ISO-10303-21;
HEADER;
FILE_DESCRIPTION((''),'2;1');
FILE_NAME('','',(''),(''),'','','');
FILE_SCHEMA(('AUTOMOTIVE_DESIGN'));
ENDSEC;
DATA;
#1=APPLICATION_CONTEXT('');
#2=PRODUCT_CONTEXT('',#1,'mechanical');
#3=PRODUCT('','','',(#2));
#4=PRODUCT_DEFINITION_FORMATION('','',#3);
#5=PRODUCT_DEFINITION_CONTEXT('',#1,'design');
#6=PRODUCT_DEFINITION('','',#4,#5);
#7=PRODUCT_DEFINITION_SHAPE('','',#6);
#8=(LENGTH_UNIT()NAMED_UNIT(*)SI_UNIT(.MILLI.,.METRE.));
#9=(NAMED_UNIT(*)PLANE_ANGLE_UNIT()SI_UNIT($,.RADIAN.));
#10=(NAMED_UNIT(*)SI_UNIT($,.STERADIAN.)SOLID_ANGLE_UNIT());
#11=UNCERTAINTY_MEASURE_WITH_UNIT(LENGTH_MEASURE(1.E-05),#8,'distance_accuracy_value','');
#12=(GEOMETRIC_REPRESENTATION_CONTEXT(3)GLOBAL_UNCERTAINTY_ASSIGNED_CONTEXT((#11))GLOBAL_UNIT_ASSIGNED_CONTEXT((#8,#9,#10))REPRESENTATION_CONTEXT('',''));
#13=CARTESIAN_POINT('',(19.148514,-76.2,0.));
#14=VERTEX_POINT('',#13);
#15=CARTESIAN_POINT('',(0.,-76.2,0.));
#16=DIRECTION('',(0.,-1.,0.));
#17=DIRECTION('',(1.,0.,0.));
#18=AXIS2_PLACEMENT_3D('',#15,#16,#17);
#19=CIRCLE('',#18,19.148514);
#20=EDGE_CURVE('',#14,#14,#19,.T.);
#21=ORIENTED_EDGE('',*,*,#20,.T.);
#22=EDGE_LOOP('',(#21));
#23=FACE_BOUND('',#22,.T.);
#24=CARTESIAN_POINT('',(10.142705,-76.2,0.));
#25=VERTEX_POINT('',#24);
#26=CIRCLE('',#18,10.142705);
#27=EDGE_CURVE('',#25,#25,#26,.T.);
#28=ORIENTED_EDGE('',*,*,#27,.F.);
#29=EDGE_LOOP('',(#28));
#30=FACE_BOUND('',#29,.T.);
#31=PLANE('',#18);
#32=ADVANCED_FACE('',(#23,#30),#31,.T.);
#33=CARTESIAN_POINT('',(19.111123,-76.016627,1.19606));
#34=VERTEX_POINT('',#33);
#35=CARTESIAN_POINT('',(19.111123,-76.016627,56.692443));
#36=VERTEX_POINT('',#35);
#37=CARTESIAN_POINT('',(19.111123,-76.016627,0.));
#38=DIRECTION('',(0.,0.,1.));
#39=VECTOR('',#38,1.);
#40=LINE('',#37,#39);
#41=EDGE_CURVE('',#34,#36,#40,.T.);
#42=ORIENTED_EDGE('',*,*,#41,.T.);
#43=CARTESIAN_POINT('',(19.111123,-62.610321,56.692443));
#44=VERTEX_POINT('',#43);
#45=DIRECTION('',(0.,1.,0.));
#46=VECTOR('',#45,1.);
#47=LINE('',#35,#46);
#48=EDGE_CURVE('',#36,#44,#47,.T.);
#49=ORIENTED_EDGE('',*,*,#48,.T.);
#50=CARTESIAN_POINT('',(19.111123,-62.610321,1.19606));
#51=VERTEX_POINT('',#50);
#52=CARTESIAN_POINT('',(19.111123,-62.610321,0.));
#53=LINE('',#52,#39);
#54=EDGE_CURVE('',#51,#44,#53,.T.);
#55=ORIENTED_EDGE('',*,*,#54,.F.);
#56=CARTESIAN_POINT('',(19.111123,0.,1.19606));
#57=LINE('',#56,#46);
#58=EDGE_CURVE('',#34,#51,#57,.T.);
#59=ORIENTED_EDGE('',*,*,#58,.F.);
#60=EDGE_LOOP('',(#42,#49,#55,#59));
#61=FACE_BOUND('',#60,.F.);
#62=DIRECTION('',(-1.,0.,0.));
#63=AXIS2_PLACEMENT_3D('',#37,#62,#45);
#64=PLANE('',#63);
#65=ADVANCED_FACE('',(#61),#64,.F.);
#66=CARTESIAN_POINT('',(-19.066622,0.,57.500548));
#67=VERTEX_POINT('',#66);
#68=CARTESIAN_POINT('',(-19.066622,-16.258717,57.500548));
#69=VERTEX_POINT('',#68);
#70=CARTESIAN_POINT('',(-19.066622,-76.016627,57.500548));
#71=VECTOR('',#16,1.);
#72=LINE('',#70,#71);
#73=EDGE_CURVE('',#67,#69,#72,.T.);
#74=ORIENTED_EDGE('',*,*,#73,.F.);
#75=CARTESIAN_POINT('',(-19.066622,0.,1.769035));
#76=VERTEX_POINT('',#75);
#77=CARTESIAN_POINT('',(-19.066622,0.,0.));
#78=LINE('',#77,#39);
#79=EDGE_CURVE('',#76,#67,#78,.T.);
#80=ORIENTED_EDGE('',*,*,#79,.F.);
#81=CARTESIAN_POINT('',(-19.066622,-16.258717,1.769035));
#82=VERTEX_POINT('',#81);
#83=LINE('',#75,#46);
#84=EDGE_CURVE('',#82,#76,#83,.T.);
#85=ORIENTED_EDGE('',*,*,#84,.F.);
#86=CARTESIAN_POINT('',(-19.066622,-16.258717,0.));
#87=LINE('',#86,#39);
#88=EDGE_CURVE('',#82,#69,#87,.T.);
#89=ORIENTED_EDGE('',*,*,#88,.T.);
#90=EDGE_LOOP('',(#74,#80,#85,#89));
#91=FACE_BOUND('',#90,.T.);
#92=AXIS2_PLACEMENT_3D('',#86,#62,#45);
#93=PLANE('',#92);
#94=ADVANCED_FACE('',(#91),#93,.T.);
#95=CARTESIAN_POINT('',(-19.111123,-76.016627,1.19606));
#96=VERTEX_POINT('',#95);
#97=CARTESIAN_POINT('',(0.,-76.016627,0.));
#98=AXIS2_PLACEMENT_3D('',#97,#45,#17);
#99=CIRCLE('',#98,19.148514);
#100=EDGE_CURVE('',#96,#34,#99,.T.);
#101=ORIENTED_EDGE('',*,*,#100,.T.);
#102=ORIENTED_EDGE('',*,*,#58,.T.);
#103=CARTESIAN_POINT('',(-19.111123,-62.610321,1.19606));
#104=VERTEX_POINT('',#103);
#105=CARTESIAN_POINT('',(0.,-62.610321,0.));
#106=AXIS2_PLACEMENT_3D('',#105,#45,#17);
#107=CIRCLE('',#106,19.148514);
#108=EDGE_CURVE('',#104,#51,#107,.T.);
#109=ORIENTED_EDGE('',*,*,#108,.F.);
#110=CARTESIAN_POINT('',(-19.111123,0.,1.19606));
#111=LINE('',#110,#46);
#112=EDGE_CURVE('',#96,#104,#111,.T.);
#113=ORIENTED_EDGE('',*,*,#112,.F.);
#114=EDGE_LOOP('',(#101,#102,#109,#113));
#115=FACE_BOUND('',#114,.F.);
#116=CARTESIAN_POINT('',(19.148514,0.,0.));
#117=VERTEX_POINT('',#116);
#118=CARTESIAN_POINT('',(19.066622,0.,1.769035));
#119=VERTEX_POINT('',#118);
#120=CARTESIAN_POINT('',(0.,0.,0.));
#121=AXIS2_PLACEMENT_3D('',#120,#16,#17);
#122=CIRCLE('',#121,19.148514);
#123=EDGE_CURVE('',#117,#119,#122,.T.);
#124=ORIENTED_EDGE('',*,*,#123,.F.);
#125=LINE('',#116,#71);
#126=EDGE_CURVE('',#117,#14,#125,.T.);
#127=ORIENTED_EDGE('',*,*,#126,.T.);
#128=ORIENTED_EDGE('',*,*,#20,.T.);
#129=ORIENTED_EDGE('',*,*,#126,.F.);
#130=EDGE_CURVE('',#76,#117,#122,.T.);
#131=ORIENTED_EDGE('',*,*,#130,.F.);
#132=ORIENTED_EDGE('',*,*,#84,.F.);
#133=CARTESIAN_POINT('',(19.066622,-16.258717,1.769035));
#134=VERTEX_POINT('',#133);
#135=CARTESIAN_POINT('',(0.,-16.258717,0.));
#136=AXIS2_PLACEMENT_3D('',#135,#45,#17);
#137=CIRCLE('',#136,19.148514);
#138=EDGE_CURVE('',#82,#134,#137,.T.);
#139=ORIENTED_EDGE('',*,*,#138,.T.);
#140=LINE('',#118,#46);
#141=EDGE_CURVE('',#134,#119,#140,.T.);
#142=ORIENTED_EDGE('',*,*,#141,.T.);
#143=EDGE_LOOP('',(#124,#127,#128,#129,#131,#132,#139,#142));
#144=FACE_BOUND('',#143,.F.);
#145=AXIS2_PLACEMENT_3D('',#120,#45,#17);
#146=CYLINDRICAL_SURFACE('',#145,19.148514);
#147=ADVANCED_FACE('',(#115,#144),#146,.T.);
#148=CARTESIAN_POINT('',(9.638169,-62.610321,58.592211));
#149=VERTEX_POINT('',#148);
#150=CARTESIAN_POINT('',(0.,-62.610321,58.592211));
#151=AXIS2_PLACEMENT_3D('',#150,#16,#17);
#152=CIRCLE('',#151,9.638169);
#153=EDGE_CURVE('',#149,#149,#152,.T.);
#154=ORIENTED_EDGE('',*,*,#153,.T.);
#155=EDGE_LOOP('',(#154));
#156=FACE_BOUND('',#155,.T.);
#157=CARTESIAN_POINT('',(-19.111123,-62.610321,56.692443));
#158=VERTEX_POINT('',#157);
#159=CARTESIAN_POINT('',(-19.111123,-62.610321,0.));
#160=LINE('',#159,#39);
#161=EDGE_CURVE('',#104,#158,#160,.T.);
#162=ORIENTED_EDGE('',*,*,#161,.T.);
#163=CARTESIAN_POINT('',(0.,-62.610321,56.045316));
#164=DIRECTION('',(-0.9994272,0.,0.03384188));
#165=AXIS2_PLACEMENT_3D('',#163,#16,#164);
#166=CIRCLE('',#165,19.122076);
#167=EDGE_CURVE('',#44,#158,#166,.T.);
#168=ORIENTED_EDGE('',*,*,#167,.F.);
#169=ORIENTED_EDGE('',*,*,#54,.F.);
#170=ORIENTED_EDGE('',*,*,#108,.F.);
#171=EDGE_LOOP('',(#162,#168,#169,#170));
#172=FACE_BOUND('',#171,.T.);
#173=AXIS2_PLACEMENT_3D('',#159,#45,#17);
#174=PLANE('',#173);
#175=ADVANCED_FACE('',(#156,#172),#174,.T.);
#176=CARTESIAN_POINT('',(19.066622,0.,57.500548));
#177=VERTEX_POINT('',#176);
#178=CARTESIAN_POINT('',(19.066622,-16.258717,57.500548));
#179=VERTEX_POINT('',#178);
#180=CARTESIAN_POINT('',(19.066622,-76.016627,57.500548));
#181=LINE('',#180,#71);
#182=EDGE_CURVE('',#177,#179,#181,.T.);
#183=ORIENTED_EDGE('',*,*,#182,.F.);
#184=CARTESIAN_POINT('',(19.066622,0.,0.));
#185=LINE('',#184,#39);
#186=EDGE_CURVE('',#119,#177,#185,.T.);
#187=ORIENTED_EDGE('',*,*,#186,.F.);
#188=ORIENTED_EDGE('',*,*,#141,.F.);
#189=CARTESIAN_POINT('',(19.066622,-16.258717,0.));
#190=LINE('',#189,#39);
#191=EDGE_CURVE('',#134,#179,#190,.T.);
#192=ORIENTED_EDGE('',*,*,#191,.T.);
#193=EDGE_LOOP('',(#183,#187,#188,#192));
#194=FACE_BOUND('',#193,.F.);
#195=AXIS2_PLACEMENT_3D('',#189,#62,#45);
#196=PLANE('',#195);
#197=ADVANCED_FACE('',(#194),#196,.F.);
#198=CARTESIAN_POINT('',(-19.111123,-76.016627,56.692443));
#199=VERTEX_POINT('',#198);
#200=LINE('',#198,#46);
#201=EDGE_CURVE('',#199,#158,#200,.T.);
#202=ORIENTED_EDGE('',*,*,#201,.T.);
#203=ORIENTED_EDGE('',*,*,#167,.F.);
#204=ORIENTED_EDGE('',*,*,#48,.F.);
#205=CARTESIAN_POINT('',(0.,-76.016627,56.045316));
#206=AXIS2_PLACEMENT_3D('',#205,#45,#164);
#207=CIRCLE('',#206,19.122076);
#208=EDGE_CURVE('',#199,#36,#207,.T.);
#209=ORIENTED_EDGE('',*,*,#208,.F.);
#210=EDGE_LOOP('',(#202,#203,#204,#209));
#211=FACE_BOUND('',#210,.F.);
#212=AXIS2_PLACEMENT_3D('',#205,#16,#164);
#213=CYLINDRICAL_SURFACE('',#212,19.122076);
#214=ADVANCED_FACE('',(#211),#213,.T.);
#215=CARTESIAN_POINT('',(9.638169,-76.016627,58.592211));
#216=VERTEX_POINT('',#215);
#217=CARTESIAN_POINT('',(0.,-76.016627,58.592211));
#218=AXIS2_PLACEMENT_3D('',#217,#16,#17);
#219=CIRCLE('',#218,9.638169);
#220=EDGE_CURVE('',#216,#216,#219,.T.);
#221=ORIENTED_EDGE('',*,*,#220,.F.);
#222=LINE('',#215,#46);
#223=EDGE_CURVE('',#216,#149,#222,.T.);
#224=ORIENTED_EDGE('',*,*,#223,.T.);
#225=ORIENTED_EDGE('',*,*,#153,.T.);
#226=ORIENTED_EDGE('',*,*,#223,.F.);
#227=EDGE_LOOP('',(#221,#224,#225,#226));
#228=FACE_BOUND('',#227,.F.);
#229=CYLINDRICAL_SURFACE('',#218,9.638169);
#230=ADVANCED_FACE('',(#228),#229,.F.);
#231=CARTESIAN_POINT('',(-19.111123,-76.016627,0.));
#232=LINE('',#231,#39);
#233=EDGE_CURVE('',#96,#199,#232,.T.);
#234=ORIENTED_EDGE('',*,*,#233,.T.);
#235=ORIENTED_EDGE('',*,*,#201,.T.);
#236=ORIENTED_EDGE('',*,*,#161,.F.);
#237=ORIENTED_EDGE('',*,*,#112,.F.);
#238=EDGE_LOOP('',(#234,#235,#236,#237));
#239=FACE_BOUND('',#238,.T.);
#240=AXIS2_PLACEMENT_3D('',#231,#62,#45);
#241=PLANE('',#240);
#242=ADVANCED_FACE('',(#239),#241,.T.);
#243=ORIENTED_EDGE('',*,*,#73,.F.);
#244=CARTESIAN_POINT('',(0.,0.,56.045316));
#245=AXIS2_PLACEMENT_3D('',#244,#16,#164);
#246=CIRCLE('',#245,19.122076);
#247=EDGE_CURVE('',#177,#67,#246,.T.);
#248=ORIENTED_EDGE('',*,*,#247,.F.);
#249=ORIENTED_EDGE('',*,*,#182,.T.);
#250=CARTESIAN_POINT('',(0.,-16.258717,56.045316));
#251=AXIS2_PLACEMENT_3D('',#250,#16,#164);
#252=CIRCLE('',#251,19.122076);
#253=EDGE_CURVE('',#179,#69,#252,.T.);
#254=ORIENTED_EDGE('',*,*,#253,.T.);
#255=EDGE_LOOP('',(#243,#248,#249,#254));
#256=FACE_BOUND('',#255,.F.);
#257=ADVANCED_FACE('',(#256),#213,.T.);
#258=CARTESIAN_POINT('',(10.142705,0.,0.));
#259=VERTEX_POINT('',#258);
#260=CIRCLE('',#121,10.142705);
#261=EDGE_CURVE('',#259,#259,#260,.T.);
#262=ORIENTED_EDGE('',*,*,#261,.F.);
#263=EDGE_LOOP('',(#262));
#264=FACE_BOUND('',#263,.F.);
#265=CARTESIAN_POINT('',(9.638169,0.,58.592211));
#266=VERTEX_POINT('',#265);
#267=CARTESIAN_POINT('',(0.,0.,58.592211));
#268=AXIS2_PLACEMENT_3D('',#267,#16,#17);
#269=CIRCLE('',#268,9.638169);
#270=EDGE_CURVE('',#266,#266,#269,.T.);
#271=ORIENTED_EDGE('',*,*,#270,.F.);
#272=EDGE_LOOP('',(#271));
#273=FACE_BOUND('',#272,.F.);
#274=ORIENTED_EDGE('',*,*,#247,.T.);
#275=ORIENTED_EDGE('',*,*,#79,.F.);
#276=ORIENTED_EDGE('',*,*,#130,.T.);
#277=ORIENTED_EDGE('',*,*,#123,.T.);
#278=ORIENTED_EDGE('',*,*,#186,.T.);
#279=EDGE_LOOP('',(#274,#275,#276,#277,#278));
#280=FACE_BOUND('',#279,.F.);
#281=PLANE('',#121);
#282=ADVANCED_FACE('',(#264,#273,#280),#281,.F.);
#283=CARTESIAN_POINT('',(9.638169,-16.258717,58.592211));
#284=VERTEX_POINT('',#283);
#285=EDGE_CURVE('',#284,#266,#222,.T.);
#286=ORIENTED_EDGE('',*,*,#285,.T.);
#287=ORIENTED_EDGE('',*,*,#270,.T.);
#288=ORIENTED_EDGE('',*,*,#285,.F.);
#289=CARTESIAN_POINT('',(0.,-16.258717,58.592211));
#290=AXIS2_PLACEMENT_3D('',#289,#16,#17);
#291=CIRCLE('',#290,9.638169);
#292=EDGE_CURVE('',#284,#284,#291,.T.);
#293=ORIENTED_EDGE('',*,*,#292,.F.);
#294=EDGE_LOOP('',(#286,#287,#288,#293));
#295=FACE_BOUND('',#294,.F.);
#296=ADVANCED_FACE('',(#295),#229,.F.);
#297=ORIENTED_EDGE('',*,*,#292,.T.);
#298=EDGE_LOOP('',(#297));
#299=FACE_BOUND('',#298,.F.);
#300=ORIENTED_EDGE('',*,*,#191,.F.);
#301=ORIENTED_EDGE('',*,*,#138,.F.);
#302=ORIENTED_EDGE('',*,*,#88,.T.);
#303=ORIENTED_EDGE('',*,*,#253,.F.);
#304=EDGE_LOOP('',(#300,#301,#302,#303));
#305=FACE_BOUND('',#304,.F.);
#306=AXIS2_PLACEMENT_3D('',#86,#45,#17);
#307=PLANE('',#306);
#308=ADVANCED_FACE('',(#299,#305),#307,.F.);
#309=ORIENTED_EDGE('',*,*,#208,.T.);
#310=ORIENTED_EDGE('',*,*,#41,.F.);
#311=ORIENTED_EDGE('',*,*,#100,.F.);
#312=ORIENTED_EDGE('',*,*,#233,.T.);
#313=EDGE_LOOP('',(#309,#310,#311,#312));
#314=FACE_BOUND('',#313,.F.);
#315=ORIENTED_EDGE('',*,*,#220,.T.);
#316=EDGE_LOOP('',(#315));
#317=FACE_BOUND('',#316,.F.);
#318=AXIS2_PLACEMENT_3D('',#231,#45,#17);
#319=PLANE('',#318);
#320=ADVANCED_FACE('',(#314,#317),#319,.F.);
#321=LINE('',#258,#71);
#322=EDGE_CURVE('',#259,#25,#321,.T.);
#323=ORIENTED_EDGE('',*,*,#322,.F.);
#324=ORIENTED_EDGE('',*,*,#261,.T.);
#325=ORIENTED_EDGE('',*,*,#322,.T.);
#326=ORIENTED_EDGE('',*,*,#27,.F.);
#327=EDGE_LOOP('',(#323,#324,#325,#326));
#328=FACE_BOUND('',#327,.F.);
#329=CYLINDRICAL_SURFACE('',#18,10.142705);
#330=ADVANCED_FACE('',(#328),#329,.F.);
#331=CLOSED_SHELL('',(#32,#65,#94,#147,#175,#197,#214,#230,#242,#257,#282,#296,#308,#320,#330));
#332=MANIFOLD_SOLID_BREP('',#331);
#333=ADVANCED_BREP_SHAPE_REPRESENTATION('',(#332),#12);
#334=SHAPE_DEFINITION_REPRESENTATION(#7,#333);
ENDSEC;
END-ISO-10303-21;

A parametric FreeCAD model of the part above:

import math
import FreeCAD as App
import Part
import Sketcher
from FreeCAD import Vector
Q = App.Units.Quantity


def add_polygon(sketch, points):
    """Adds a closed chain of lines whose ends are joined by coincident constraints."""
    first, n = sketch.GeometryCount, len(points)
    for a, b in zip(points, points[1:] + points[:1]):
        sketch.addGeometry(Part.LineSegment(App.Vector(*a, 0), App.Vector(*b, 0)), False)
    for i in range(n):
        sketch.addConstraint(Sketcher.Constraint("Coincident", first + i, 2, first + (i + 1) % n, 1))

doc = App.newDocument("Part")
params = doc.addObject("Spreadsheet::Sheet", "Params")
for row, (alias, value) in enumerate([
    ("pad1_length", "3 in"),
    ("pocket1_length", "3 in"),
    ("pad2_length", "3 in"),
    ("pad3_length", "3 in"),
    ("pocket2_length", "5 in"),
    ("pocket3_length", "5 in"),
    ("pocket4_length", "5 in"),
], start=1):
    params.set(f"A{row}", alias)
    params.set(f"B{row}", "=" + value)
    params.setAlias(f"B{row}", alias)

body = doc.addObject("PartDesign::Body", "Body")

sketch1 = body.newObject("Sketcher::SketchObject", "Sketch")
sketch1.AttachmentSupport = (doc.getObject("XZ_Plane"), [""])
sketch1.MapMode = "FlatFace"
sketch1.addGeometry(Part.Circle(Vector(0, 0, 0), Vector(0, 0, 1), 19), False)
sketch1.addConstraint(Sketcher.Constraint("Coincident", 0, 3, -1, 1))
sketch1.addConstraint(Sketcher.Constraint("Diameter", 0, 38.297028))
pad1 = body.newObject("PartDesign::Pad", "Pad")
pad1.Profile = sketch1
pad1.setExpression("Length", "Params.pad1_length")

sketch2 = body.newObject("Sketcher::SketchObject", "Sketch001")
sketch2.AttachmentSupport = (doc.getObject("XZ_Plane"), [""])
sketch2.MapMode = "FlatFace"
sketch2.AttachmentOffset = App.Placement(Vector(0, 0, 3 * 25.4), App.Rotation())
sketch2.addGeometry(Part.Circle(Vector(0, 0, 0), Vector(0, 0, 1), 10), False)
sketch2.addConstraint(Sketcher.Constraint("Coincident", 0, 3, -1, 1))
sketch2.addConstraint(Sketcher.Constraint("Diameter", 0, 20.285411))
pocket1 = body.newObject("PartDesign::Pocket", "Pocket")
pocket1.Profile = sketch2
pocket1.setExpression("Length", "Params.pocket1_length")

sketch3 = body.newObject("Sketcher::SketchObject", "Sketch002")
sketch3.AttachmentSupport = (doc.getObject("XY_Plane"), [""])
sketch3.MapMode = "FlatFace"
add_polygon(sketch3, [(-19, 0), (-19, -16), (19, -16), (19, 0)])
sketch3.addConstraint(Sketcher.Constraint("Vertical", 0))
sketch3.addConstraint(Sketcher.Constraint("Horizontal", 1))
sketch3.addConstraint(Sketcher.Constraint("Vertical", 2))
sketch3.addConstraint(Sketcher.Constraint("Horizontal", 3))
sketch3.addConstraint(Sketcher.Constraint("Symmetric", 2, 2, 3, 2, -1, 1))
sketch3.addConstraint(Sketcher.Constraint("DistanceX", 1, 1, 1, 2, 38.133245))
sketch3.addConstraint(Sketcher.Constraint("DistanceY", 0, 2, 0, 1, 16.258717))
pad2 = body.newObject("PartDesign::Pad", "Pad001")
pad2.Profile = sketch3
pad2.setExpression("Length", "Params.pad2_length")

sketch4 = body.newObject("Sketcher::SketchObject", "Sketch003")
sketch4.AttachmentSupport = (doc.getObject("XY_Plane"), [""])
sketch4.MapMode = "FlatFace"
add_polygon(sketch4, [(-19, -63), (-19, -76), (19, -76), (19, -63)])
sketch4.addConstraint(Sketcher.Constraint("Vertical", 0))
sketch4.addConstraint(Sketcher.Constraint("Horizontal", 1))
sketch4.addConstraint(Sketcher.Constraint("Vertical", 2))
sketch4.addConstraint(Sketcher.Constraint("Horizontal", 3))
sketch4.addConstraint(Sketcher.Constraint("DistanceX", 1, 1, 1, 2, 38.222246))
sketch4.addConstraint(Sketcher.Constraint("DistanceY", 0, 2, 0, 1, 13.406307))
sketch4.addConstraint(Sketcher.Constraint("DistanceY", 2, 2, -1, 1, 62.610321))
sketch4.addConstraint(Sketcher.Constraint("DistanceX", 0, 2, -1, 1, 19.111123))
pad3 = body.newObject("PartDesign::Pad", "Pad002")
pad3.Profile = sketch4
pad3.setExpression("Length", "Params.pad3_length")

sketch5 = body.newObject("Sketcher::SketchObject", "Sketch004")
sketch5.AttachmentSupport = (doc.getObject("XZ_Plane"), [""])
sketch5.MapMode = "FlatFace"
sketch5.AttachmentOffset = App.Placement(Vector(0, 0, 76.016627), App.Rotation())
sketch5.addGeometry(Part.ArcOfCircle(Part.Circle(Vector(0, 0, 0), Vector(0, 0, 1), 10), math.radians(0), math.radians(180)), False)
sketch5.addGeometry(Part.LineSegment(Vector(-10, 0, 0), Vector(10, 0, 0)), False)
sketch5.addConstraint(Sketcher.Constraint("Coincident", 0, 1, 1, 2))
sketch5.addConstraint(Sketcher.Constraint("Coincident", 1, 1, 0, 2))
sketch5.addConstraint(Sketcher.Constraint("Horizontal", 1))
sketch5.addConstraint(Sketcher.Constraint("Coincident", 0, 3, -1, 1))
sketch5.addConstraint(Sketcher.Constraint("PointOnObject", 0, 1, -1))
sketch5.addConstraint(Sketcher.Constraint("Radius", 0, 10.142705))
pocket2 = body.newObject("PartDesign::Pocket", "Pocket001")
pocket2.Profile = sketch5
pocket2.setExpression("Length", "Params.pocket2_length")

sketch6 = body.newObject("Sketcher::SketchObject", "Sketch005")
sketch6.AttachmentSupport = (doc.getObject("XZ_Plane"), [""])
sketch6.MapMode = "FlatFace"
sketch6.AttachmentOffset = App.Placement(Vector(0, 0, 76.016627), App.Rotation())
sketch6.addGeometry(Part.ArcOfCircle(Part.Circle(Vector(0, 56, 0), Vector(0, 0, 1), 19), math.radians(2), math.radians(178)), False)
sketch6.addGeometry(Part.LineSegment(Vector(19, 57, 0), Vector(19, 76, 0)), False)
sketch6.addGeometry(Part.LineSegment(Vector(19, 76, 0), Vector(-19, 76, 0)), False)
sketch6.addGeometry(Part.LineSegment(Vector(-19, 76, 0), Vector(-19, 57, 0)), False)
sketch6.addConstraint(Sketcher.Constraint("Coincident", 0, 1, 1, 1))
sketch6.addConstraint(Sketcher.Constraint("Coincident", 1, 2, 2, 1))
sketch6.addConstraint(Sketcher.Constraint("Coincident", 2, 2, 3, 1))
sketch6.addConstraint(Sketcher.Constraint("Coincident", 3, 2, 0, 2))
sketch6.addConstraint(Sketcher.Constraint("Vertical", 1))
sketch6.addConstraint(Sketcher.Constraint("Horizontal", 2))
sketch6.addConstraint(Sketcher.Constraint("Vertical", 3))
sketch6.addConstraint(Sketcher.Constraint("Symmetric", 0, 1, 3, 2, -2))
sketch6.addConstraint(Sketcher.Constraint("DistanceY", -1, 1, 1, 2, Q("3 in")))
sketch6.addConstraint(Sketcher.Constraint("Radius", 0, 19.122076))
sketch6.addConstraint(Sketcher.Constraint("DistanceX", 2, 2, 2, 1, 38.222246))
sketch6.addConstraint(Sketcher.Constraint("DistanceY", 1, 1, 1, 2, 19.507557))
pocket3 = body.newObject("PartDesign::Pocket", "Pocket002")
pocket3.Profile = sketch6
pocket3.setExpression("Length", "Params.pocket3_length")

sketch7 = body.newObject("Sketcher::SketchObject", "Sketch006")
sketch7.AttachmentSupport = (doc.getObject("XZ_Plane"), [""])
sketch7.MapMode = "FlatFace"
sketch7.AttachmentOffset = App.Placement(Vector(0, 0, 76.016627), App.Rotation())
sketch7.addGeometry(Part.Circle(Vector(0, 59, 0), Vector(0, 0, 1), 10), False)
sketch7.addConstraint(Sketcher.Constraint("PointOnObject", 0, 3, -2))
sketch7.addConstraint(Sketcher.Constraint("Diameter", 0, 19.276338))
sketch7.addConstraint(Sketcher.Constraint("DistanceY", -1, 1, 0, 3, 58.592211))
pocket4 = body.newObject("PartDesign::Pocket", "Pocket003")
pocket4.Profile = sketch7
pocket4.setExpression("Length", "Params.pocket4_length")

doc.recompute()
